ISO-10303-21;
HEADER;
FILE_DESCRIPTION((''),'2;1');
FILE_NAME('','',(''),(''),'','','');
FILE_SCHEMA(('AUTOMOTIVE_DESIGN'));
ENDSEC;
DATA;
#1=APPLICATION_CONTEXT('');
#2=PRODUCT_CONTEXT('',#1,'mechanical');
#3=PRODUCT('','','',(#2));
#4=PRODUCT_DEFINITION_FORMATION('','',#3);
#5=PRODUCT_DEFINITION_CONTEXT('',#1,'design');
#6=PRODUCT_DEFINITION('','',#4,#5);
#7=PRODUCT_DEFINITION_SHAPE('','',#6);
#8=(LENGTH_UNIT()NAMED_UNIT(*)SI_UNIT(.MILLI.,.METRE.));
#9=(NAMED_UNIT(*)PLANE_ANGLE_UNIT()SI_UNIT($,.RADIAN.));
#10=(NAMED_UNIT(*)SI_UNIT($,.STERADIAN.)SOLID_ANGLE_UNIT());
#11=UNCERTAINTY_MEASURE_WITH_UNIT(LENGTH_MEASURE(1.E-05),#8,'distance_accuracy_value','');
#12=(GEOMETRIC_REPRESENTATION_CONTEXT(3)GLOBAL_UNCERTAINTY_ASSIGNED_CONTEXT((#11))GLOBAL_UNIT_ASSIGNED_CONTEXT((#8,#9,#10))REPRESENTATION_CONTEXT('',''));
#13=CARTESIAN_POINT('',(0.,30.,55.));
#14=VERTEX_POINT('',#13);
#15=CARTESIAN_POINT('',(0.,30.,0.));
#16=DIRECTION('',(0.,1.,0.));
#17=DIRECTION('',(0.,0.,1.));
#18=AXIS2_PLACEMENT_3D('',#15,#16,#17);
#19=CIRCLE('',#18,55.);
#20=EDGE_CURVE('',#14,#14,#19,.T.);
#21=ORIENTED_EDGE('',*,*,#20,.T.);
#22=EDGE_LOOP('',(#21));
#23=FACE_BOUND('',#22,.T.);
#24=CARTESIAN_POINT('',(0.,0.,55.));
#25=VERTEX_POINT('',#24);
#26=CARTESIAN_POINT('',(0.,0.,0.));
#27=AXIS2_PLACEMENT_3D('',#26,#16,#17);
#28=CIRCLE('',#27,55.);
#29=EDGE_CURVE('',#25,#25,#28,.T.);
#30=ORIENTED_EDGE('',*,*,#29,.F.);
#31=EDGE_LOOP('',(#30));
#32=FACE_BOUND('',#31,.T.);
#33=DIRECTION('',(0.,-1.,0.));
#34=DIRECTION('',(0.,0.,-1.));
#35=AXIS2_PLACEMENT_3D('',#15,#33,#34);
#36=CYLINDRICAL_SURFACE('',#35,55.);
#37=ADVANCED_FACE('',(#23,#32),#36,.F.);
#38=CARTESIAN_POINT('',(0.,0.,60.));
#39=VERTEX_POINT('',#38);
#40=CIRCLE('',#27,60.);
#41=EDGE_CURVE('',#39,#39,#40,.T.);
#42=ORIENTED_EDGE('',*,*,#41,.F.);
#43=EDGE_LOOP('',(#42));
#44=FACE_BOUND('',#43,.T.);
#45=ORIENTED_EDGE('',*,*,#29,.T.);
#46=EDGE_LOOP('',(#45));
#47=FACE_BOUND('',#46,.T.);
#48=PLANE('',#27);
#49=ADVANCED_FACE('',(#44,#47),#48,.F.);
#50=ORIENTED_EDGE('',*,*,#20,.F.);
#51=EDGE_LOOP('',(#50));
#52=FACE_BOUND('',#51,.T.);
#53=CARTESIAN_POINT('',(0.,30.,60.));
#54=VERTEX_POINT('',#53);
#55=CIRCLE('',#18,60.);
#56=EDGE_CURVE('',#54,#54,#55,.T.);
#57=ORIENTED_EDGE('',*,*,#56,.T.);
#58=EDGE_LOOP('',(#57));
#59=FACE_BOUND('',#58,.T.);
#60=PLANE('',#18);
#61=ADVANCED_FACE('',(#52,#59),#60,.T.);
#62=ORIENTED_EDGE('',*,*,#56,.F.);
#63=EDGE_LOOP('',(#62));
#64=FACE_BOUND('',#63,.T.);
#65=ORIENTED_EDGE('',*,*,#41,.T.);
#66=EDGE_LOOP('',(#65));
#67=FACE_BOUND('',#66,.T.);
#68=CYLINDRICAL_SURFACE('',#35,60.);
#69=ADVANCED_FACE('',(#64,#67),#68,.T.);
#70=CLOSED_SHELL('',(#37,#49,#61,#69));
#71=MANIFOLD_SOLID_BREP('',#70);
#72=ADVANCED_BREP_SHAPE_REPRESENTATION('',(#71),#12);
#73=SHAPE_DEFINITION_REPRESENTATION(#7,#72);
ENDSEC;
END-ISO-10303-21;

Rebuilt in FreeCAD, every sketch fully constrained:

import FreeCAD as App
import Part
import Sketcher
from FreeCAD import Vector
Q = App.Units.Quantity


def faces_at(feature, points):
    """Names of the faces that lie closest to the given points."""
    faces = feature.Shape.Faces
    near = lambda p: min(range(len(faces)), key=lambda i: faces[i].distToShape(Part.Vertex(*p))[0])
    return sorted({f"Face{near(p) + 1}" for p in points})

doc = App.newDocument("Part")
body = doc.addObject("PartDesign::Body", "Body")

# Sketch on XZ plane
sketch1 = body.newObject("Sketcher::SketchObject", "Sketch")
sketch1.AttachmentSupport = (doc.getObject("XZ_Plane"), [""])
sketch1.MapMode = "FlatFace"
sketch1.addGeometry(Part.Circle(Vector(0, 0, 0), Vector(0, 0, 1), 60), False)
sketch1.addConstraint([
    Sketcher.Constraint("Coincident", 0, 3, -1, 1),
    Sketcher.Constraint("Diameter", 0, Q("120 mm")),
])
pad1 = body.newObject("PartDesign::Pad", "Pad")
pad1.Profile = sketch1
pad1.Length = 30
pad1.Reversed = True
doc.recompute()

thickness = body.newObject("PartDesign::Thickness", "Thickness")
thickness.Base = (pad1, faces_at(pad1, [(0, 30, 0), (0, 0, 0)]))
thickness.Value = 5
thickness.Reversed = True
thickness.Join = "Intersection"

doc.recompute()
